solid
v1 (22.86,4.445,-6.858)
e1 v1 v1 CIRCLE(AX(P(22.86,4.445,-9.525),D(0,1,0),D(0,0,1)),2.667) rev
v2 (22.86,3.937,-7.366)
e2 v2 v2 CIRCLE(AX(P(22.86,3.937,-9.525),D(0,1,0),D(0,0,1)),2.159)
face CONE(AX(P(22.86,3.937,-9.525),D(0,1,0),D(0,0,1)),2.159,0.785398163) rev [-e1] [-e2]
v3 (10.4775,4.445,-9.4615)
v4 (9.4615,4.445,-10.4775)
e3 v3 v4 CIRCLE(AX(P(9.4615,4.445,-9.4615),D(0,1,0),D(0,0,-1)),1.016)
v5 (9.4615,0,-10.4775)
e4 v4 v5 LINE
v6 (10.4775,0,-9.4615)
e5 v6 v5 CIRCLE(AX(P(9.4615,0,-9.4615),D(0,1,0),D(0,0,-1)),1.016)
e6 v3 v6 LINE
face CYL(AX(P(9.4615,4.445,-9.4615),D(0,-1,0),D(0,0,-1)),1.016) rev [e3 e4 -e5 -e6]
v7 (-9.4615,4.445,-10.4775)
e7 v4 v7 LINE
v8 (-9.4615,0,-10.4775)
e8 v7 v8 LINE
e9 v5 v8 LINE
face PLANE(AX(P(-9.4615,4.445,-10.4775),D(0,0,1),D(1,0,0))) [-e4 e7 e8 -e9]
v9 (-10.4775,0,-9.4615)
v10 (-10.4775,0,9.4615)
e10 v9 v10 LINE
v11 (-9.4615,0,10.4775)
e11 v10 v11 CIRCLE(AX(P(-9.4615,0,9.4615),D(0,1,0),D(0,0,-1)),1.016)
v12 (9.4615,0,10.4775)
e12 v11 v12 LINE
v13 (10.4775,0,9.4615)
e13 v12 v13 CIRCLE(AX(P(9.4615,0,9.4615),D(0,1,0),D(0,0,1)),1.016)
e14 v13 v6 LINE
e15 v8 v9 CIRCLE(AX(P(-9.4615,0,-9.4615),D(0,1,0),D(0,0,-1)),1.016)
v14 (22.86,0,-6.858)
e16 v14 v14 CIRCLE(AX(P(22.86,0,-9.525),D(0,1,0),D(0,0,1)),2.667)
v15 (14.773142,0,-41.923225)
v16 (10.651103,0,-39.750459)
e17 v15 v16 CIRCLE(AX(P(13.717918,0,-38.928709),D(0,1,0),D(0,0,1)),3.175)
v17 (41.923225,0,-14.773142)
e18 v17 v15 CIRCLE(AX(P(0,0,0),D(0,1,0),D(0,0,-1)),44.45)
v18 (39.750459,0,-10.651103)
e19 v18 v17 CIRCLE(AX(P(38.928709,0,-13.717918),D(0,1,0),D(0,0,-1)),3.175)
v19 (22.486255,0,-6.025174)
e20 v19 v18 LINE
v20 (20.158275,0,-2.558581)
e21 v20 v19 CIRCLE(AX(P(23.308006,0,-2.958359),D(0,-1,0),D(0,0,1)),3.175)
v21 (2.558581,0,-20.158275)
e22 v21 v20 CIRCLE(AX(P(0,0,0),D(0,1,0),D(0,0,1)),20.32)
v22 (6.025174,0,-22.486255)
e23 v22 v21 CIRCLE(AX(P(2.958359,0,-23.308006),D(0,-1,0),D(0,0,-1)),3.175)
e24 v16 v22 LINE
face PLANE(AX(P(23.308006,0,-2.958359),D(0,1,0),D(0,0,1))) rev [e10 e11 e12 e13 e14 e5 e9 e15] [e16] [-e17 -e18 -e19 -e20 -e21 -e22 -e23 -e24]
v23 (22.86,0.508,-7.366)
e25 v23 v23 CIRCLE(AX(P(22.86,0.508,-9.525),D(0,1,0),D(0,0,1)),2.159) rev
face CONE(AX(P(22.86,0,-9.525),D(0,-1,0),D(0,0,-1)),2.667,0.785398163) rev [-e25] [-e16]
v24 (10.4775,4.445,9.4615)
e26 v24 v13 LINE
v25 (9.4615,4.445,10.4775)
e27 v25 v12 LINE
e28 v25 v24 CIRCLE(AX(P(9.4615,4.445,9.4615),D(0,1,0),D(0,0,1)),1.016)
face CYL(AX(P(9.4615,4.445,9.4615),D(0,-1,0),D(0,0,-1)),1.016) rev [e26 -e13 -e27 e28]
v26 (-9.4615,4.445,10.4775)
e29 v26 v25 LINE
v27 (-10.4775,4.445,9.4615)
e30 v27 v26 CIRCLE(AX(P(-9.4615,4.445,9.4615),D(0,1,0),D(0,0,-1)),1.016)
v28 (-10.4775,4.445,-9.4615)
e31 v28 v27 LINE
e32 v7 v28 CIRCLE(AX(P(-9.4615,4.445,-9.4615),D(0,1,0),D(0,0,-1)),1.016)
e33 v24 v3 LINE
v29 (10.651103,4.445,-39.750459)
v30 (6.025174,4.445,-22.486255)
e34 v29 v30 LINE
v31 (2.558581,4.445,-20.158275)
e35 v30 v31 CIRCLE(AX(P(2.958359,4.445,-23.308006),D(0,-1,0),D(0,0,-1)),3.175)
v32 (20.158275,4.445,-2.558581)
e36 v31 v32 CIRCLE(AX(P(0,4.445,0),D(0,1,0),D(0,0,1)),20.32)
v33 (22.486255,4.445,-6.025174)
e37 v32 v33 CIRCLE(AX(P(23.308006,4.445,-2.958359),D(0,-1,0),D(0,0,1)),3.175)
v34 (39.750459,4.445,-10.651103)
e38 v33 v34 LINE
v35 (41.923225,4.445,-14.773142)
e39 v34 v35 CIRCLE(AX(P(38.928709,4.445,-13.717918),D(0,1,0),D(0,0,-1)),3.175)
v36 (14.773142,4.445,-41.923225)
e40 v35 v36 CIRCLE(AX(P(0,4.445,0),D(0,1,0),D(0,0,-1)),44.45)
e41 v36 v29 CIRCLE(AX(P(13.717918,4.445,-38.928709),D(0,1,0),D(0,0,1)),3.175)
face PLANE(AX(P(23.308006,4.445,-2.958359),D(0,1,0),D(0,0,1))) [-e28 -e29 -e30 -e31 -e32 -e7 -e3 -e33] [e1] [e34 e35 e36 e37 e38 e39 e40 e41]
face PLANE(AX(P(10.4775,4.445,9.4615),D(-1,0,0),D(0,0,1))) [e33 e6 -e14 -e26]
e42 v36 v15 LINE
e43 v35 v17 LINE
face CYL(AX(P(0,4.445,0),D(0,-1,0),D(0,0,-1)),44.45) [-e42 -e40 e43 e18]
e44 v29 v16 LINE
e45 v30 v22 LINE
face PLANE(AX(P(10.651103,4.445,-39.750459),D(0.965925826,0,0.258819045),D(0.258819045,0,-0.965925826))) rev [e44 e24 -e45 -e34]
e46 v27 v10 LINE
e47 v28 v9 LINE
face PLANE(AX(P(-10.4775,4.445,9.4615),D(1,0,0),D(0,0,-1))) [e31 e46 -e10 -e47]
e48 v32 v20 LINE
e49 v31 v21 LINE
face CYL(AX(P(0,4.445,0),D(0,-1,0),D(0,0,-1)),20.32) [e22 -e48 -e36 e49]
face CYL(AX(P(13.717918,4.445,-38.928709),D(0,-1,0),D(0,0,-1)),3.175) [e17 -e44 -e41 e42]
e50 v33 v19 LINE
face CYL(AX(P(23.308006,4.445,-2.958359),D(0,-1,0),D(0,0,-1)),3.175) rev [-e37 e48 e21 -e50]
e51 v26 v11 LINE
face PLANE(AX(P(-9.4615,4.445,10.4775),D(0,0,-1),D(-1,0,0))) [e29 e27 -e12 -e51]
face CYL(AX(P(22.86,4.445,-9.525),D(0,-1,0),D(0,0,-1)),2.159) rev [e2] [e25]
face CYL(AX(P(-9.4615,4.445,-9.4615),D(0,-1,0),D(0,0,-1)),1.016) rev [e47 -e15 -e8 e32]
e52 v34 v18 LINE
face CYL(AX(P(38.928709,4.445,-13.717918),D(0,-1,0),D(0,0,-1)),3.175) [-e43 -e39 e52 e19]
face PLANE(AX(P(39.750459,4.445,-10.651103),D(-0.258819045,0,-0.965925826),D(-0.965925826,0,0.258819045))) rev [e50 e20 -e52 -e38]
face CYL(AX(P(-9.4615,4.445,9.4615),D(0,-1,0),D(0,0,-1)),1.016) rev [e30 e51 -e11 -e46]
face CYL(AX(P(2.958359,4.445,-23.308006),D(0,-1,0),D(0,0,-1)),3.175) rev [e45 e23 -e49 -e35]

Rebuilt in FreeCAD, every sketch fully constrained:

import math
import FreeCAD as App
import Part
import Sketcher

V = App.Vector
Q = App.Units.Quantity


def edges_at(feature, points):
    """Names of the edges that pass closest to the given points."""
    edges = feature.Shape.Edges
    near = lambda p: min(range(len(edges)), key=lambda i: edges[i].distToShape(Part.Vertex(*p))[0])
    return sorted({f"Edge{near(p) + 1}" for p in points})

doc = App.newDocument("Part")
body = doc.addObject("PartDesign::Body", "Body")

# Sketch on XZ plane
sketch1 = body.newObject("Sketcher::SketchObject", "Sketch")
sketch1.AttachmentSupport = (doc.getObject("XZ_Plane"), [""])
sketch1.MapMode = "FlatFace"
sketch1.addGeometry([
    Part.LineSegment(V(10.7, -39.8, 0), V(6, -22.5, 0)),  # 0
    Part.ArcOfCircle(Part.Circle(V(3, -23.3, 0), V(0, 0, 1), 3.2), math.radians(15), math.radians(97)),  # 1
    Part.ArcOfCircle(Part.Circle(V(0, 0, 0), V(0, 0, 1), 20.3), math.radians(-7), math.radians(277)),  # 2
    Part.ArcOfCircle(Part.Circle(V(23.3, -3, 0), V(0, 0, 1), 3.2), math.radians(173), math.radians(255)),  # 3
    Part.LineSegment(V(22.5, -6, 0), V(39.8, -10.7, 0)),  # 4
    Part.ArcOfCircle(Part.Circle(V(38.9, -13.7, 0), V(0, 0, 1), 3.2), math.radians(-19), math.radians(75)),  # 5
    Part.ArcOfCircle(Part.Circle(V(0, 0, 0), V(0, 0, 1), 44.4), math.radians(-71), math.radians(-19)),  # 6
    Part.ArcOfCircle(Part.Circle(V(13.7, -38.9, 0), V(0, 0, 1), 3.2), math.radians(-165), math.radians(-71)),  # 7
    Part.LineSegment(V(9.5, 10.5, 0), V(-9.5, 10.5, 0)),  # 8
    Part.ArcOfCircle(Part.Circle(V(-9.5, 9.5, 0), V(0, 0, 1), 1), math.radians(90), math.radians(180)),  # 9
    Part.LineSegment(V(-10.5, 9.5, 0), V(-10.5, -9.5, 0)),  # 10
    Part.ArcOfCircle(Part.Circle(V(-9.5, -9.5, 0), V(0, 0, 1), 1), math.radians(180), math.radians(270)),  # 11
    Part.LineSegment(V(-9.5, -10.5, 0), V(9.5, -10.5, 0)),  # 12
    Part.ArcOfCircle(Part.Circle(V(9.5, -9.5, 0), V(0, 0, 1), 1), math.radians(-90), math.radians(0)),  # 13
    Part.LineSegment(V(10.5, -9.5, 0), V(10.5, 9.5, 0)),  # 14
    Part.ArcOfCircle(Part.Circle(V(9.5, 9.5, 0), V(0, 0, 1), 1), math.radians(0), math.radians(90)),  # 15
    Part.Circle(V(22.9, -9.5, 0), V(0, 0, 1), 2.2),  # 16
], False)
sketch1.addConstraint([
    Sketcher.Constraint("Tangent", 0, 2, 1, 1),
    Sketcher.Constraint("Tangent", 1, 2, 2, 2),
    Sketcher.Constraint("Tangent", 2, 1, 3, 1),
    Sketcher.Constraint("Tangent", 3, 2, 4, 1),
    Sketcher.Constraint("Tangent", 4, 2, 5, 2),
    Sketcher.Constraint("Tangent", 5, 1, 6, 2),
    Sketcher.Constraint("Tangent", 6, 1, 7, 2),
    Sketcher.Constraint("Tangent", 7, 1, 0, 1),
    Sketcher.Constraint("Tangent", 8, 2, 9, 1),
    Sketcher.Constraint("Tangent", 9, 2, 10, 1),
    Sketcher.Constraint("Tangent", 10, 2, 11, 1),
    Sketcher.Constraint("Tangent", 11, 2, 12, 1),
    Sketcher.Constraint("Tangent", 12, 2, 13, 1),
    Sketcher.Constraint("Tangent", 13, 2, 14, 1),
    Sketcher.Constraint("Tangent", 14, 2, 15, 1),
    Sketcher.Constraint("Tangent", 15, 2, 8, 1),
    Sketcher.Constraint("Horizontal", 8),
    Sketcher.Constraint("Vertical", 10),
    Sketcher.Constraint("Horizontal", 12),
    Sketcher.Constraint("Vertical", 14),
    Sketcher.Constraint("Coincident", 2, 3, -1, 1),
    Sketcher.Constraint("Coincident", 6, 3, -1, 1),
    Sketcher.Constraint("Equal", 1, 3),
    Sketcher.Constraint("Equal", 3, 5),
    Sketcher.Constraint("Equal", 5, 7),
    Sketcher.Constraint("Equal", 9, 11),
    Sketcher.Constraint("Equal", 11, 13),
    Sketcher.Constraint("Equal", 13, 15),
    Sketcher.Constraint("Symmetric", 9, 3, 13, 3, -1, 1),
    Sketcher.Constraint("Equal", 12, 10),
    Sketcher.Constraint("Equal", 0, 4),
    Sketcher.Constraint("Radius", 2, Q("0.8 in")),
    Sketcher.Constraint("Diameter", 16, Q("0.17 in")),
    Sketcher.Constraint("Radius", 6, Q("1.75 in")),
    Sketcher.Constraint("Radius", 9, Q("0.04 in")),
    Sketcher.Constraint("Angle", 0, Q("105 deg")),
    Sketcher.Constraint("Angle", 4, Q("-15 deg")),
    Sketcher.Constraint("Radius", 1, Q("0.125 in")),
    Sketcher.Constraint("DistanceX", -1, 1, 16, 3, Q("0.9 in")),
    Sketcher.Constraint("DistanceX", 8, 2, 8, 1, Q("0.745 in")),
    Sketcher.Constraint("DistanceY", 16, 3, -1, 1, Q("0.375 in")),
    Sketcher.Constraint("Distance", 0, Q("17.873219 mm")),
])
pad1 = body.newObject("PartDesign::Pad", "Pad")
pad1.Profile = sketch1
pad1.Length = Q("0.175 in")
pad1.Reversed = True
doc.recompute()

chamfer = body.newObject("PartDesign::Chamfer", "Chamfer")
chamfer.Base = (pad1, edges_at(pad1, [(20.701, 0, -9.525), (20.701, 4.445, -9.525)]))
chamfer.Size = Q("0.02 in")

doc.recompute()
